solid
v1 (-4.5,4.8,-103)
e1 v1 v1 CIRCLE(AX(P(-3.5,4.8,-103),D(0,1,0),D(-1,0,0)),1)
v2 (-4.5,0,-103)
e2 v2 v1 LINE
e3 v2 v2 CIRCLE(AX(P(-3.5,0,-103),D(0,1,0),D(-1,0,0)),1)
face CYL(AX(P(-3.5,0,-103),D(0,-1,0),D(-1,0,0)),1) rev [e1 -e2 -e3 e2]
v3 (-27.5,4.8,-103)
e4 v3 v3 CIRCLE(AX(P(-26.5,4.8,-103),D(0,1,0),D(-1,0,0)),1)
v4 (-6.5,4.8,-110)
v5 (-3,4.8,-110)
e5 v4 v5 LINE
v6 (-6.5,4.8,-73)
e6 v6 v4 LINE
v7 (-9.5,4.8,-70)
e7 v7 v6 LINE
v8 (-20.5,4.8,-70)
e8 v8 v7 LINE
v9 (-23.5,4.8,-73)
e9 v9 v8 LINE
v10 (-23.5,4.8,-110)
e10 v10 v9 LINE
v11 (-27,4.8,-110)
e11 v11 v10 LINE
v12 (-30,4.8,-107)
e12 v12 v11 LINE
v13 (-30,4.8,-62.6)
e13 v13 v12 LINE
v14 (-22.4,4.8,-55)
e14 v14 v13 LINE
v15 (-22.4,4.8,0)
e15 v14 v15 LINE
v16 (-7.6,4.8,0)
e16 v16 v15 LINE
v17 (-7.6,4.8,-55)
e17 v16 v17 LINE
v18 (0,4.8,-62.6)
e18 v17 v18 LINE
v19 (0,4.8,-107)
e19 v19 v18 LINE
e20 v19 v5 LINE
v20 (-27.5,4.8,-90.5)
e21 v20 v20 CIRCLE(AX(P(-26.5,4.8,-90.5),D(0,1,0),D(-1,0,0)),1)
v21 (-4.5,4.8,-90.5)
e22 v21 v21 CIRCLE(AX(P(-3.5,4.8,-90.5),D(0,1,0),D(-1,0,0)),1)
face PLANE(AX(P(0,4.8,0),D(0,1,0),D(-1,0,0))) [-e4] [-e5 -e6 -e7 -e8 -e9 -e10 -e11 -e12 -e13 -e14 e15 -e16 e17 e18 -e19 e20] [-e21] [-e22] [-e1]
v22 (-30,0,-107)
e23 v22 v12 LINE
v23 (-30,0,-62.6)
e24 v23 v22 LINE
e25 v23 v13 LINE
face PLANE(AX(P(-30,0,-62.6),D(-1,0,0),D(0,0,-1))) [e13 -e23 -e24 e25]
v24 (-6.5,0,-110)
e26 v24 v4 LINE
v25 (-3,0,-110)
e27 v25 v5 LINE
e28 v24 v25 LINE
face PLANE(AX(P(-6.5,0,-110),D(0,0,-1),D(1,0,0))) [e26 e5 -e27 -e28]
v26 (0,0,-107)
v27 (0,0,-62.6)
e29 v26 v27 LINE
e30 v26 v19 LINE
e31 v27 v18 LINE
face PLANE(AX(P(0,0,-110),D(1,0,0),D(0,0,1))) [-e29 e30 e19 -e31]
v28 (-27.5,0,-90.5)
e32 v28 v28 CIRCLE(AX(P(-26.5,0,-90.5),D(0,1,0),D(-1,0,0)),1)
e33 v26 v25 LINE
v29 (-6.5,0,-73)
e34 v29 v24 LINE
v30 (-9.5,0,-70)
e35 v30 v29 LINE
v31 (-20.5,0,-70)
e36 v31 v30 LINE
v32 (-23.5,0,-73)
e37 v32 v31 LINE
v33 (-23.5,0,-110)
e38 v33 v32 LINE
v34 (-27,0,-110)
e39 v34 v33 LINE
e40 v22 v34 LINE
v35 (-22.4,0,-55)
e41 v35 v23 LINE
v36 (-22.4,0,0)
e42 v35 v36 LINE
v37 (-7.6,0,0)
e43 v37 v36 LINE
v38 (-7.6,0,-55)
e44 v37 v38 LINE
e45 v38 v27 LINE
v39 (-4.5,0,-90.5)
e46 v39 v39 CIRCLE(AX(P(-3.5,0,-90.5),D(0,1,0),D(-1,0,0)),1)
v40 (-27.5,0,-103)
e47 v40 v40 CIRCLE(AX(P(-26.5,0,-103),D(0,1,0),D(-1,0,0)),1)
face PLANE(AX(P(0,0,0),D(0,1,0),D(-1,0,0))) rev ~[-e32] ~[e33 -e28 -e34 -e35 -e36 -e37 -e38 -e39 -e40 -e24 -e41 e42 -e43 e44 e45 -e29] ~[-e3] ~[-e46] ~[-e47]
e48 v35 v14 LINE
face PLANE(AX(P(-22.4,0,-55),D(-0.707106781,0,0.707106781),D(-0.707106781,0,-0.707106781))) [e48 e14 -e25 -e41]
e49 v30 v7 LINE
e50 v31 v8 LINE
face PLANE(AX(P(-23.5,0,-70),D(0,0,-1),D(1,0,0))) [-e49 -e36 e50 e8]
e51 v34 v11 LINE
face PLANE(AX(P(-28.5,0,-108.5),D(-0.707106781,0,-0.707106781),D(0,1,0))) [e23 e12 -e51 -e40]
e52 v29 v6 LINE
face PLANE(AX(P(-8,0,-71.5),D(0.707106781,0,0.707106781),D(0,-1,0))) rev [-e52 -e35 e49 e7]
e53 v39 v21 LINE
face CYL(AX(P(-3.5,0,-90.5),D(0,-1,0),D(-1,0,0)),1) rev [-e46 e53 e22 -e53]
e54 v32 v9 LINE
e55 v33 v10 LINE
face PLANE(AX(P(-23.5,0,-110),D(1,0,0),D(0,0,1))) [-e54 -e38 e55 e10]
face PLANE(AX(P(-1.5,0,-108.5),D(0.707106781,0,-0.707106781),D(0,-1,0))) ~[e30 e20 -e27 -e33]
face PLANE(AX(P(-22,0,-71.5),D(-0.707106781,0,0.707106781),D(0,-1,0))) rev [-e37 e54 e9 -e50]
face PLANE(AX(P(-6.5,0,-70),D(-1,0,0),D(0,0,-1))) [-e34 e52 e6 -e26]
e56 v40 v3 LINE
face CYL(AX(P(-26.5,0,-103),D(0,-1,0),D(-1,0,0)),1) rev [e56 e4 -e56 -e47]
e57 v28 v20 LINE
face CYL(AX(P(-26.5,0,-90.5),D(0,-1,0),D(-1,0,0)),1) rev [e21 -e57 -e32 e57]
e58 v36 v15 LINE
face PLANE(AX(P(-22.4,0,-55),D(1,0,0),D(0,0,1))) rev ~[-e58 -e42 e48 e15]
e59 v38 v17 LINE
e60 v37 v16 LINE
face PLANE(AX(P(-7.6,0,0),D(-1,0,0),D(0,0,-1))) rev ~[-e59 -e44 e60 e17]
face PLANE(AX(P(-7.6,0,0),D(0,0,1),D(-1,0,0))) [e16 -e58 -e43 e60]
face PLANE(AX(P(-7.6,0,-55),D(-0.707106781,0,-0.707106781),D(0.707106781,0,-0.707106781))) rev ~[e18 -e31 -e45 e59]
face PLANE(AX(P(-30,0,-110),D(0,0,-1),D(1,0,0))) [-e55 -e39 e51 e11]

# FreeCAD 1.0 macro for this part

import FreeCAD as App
import Part
import Sketcher

V = App.Vector


def edges_at(feature, points):
    """Names of the edges that pass closest to the given points."""
    edges = feature.Shape.Edges
    near = lambda p: min(range(len(edges)), key=lambda i: edges[i].distToShape(Part.Vertex(*p))[0])
    return sorted({f"Edge{near(p) + 1}" for p in points})

doc = App.newDocument("Part")
params = doc.addObject("Spreadsheet::Sheet", "Params")
for row, (alias, value) in enumerate([
    ("sketch1_diameter", "2 mm"),
    ("sketch1_height", "55 mm"),
    ("sketch1_height2", "40 mm"),
    ("sketch1_width", "14.8 mm"),
    ("pad1_length", "4.8 mm"),
    ("chamfer_size", "3 mm"),
], start=1):
    params.set(f"A{row}", alias)
    params.set(f"B{row}", "=" + value)
    params.setAlias(f"B{row}", alias)

body = doc.addObject("PartDesign::Body", "Body")

# Sketch on XZ plane
sketch1 = body.newObject("Sketcher::SketchObject", "Sketch")
sketch1.AttachmentSupport = (doc.getObject("XZ_Plane"), [""])
sketch1.MapMode = "FlatFace"
sketch1.addGeometry(Part.LineSegment(V(-22.4, 0, 0), V(-7.6, 0, 0)), False)
sketch1.addGeometry(Part.LineSegment(V(-7.6, 0, 0), V(-7.6, -55, 0)), False)
sketch1.addGeometry(Part.LineSegment(V(-7.6, -55, 0), V(0, -62.6, 0)), False)
sketch1.addGeometry(Part.LineSegment(V(0, -62.6, 0), V(0, -110, 0)), False)
sketch1.addGeometry(Part.LineSegment(V(0, -110, 0), V(-6.5, -110, 0)), False)
sketch1.addGeometry(Part.LineSegment(V(-6.5, -110, 0), V(-6.5, -70, 0)), False)
sketch1.addGeometry(Part.LineSegment(V(-6.5, -70, 0), V(-23.5, -70, 0)), False)
sketch1.addGeometry(Part.LineSegment(V(-23.5, -70, 0), V(-23.5, -110, 0)), False)
sketch1.addGeometry(Part.LineSegment(V(-23.5, -110, 0), V(-30, -110, 0)), False)
sketch1.addGeometry(Part.LineSegment(V(-30, -110, 0), V(-30, -62.6, 0)), False)
sketch1.addGeometry(Part.LineSegment(V(-30, -62.6, 0), V(-22.4, -55, 0)), False)
sketch1.addGeometry(Part.LineSegment(V(-22.4, -55, 0), V(-22.4, 0, 0)), False)
sketch1.addGeometry(Part.Circle(V(-26.5, -90.5, 0), V(0, 0, 1), 1), False)
sketch1.addGeometry(Part.Circle(V(-3.5, -103, 0), V(0, 0, 1), 1), False)
sketch1.addGeometry(Part.Circle(V(-3.5, -90.5, 0), V(0, 0, 1), 1), False)
sketch1.addGeometry(Part.Circle(V(-26.5, -103, 0), V(0, 0, 1), 1), False)
sketch1.addConstraint(Sketcher.Constraint("Coincident", 0, 2, 1, 1))
sketch1.addConstraint(Sketcher.Constraint("Coincident", 1, 2, 2, 1))
sketch1.addConstraint(Sketcher.Constraint("Coincident", 2, 2, 3, 1))
sketch1.addConstraint(Sketcher.Constraint("Coincident", 3, 2, 4, 1))
sketch1.addConstraint(Sketcher.Constraint("Coincident", 4, 2, 5, 1))
sketch1.addConstraint(Sketcher.Constraint("Coincident", 5, 2, 6, 1))
sketch1.addConstraint(Sketcher.Constraint("Coincident", 6, 2, 7, 1))
sketch1.addConstraint(Sketcher.Constraint("Coincident", 7, 2, 8, 1))
sketch1.addConstraint(Sketcher.Constraint("Coincident", 8, 2, 9, 1))
sketch1.addConstraint(Sketcher.Constraint("Coincident", 9, 2, 10, 1))
sketch1.addConstraint(Sketcher.Constraint("Coincident", 10, 2, 11, 1))
sketch1.addConstraint(Sketcher.Constraint("Coincident", 11, 2, 0, 1))
sketch1.addConstraint(Sketcher.Constraint("Horizontal", 0))
sketch1.addConstraint(Sketcher.Constraint("Vertical", 1))
sketch1.addConstraint(Sketcher.Constraint("Vertical", 3))
sketch1.addConstraint(Sketcher.Constraint("Horizontal", 4))
sketch1.addConstraint(Sketcher.Constraint("Vertical", 5))
sketch1.addConstraint(Sketcher.Constraint("Horizontal", 6))
sketch1.addConstraint(Sketcher.Constraint("Vertical", 7))
sketch1.addConstraint(Sketcher.Constraint("Horizontal", 8))
sketch1.addConstraint(Sketcher.Constraint("Vertical", 9))
sketch1.addConstraint(Sketcher.Constraint("Vertical", 11))
sketch1.addConstraint(Sketcher.Constraint("Equal", 12, 13))
sketch1.addConstraint(Sketcher.Constraint("Equal", 13, 14))
sketch1.addConstraint(Sketcher.Constraint("Equal", 14, 15))
sketch1.addConstraint(Sketcher.Constraint("PointOnObject", 0, 2, -1))
sketch1.addConstraint(Sketcher.Constraint("PointOnObject", 2, 2, -2))
sketch1.addConstraint(Sketcher.Constraint("Perpendicular", 2, 10))
sketch1.addConstraint(Sketcher.Constraint("Horizontal", 12, 3, 14, 3))
sketch1.addConstraint(Sketcher.Constraint("Horizontal", 13, 3, 15, 3))
sketch1.addConstraint(Sketcher.Constraint("Horizontal", 4, 2, 7, 2))
sketch1.addConstraint(Sketcher.Constraint("Horizontal", 2, 2, 9, 2))
sketch1.addConstraint(Sketcher.Constraint("Horizontal", 1, 2, 10, 2))
sketch1.addConstraint(Sketcher.Constraint("Vertical", 13, 3, 14, 3))
sketch1.addConstraint(Sketcher.Constraint("Vertical", 12, 3, 15, 3))
sketch1.addConstraint(Sketcher.Constraint("Equal", 4, 8))
sketch1.addConstraint(Sketcher.Constraint("Equal", 2, 10))
sketch1.addConstraint(Sketcher.Constraint("Diameter", 12, 2.0))
sketch1.addConstraint(Sketcher.Constraint("DistanceY", 1, 2, 1, 1, 55.0))
sketch1.addConstraint(Sketcher.Constraint("DistanceY", 5, 1, 5, 2, 40.0))
sketch1.addConstraint(Sketcher.Constraint("DistanceX", 0, 1, 0, 2, 14.8))
sketch1.addConstraint(Sketcher.Constraint("DistanceY", 3, 2, -1, 1, 110.0))
sketch1.addConstraint(Sketcher.Constraint("DistanceX", 8, 2, -1, 1, 30.0))
sketch1.addConstraint(Sketcher.Constraint("DistanceX", 4, 2, 13, 3, 3.0))
sketch1.addConstraint(Sketcher.Constraint("DistanceX", 12, 3, 6, 2, 3.0))
sketch1.addConstraint(Sketcher.Constraint("DistanceX", 13, 3, -1, 1, 3.5))
sketch1.addConstraint(Sketcher.Constraint("DistanceY", 13, 3, -1, 1, 103.0))
sketch1.addConstraint(Sketcher.Constraint("DistanceY", 12, 3, -1, 1, 90.5))
sketch1.setExpression("Constraints[37]", "Params.sketch1_diameter")
sketch1.setExpression("Constraints[38]", "Params.sketch1_height")
sketch1.setExpression("Constraints[39]", "Params.sketch1_height2")
sketch1.setExpression("Constraints[40]", "Params.sketch1_width")
pad1 = body.newObject("PartDesign::Pad", "Pad")
pad1.Profile = sketch1
pad1.setExpression("Length", "Params.pad1_length")
pad1.Reversed = True
doc.recompute()

chamfer = body.newObject("PartDesign::Chamfer", "Chamfer")
chamfer.Base = (pad1, edges_at(pad1, [
    (-23.5, 2.4, -70),
    (-6.5, 2.4, -70),
    (-30, 2.4, -110),
    (0, 2.4, -110),
]))
chamfer.setExpression("Size", "Params.chamfer_size")

doc.recompute()
